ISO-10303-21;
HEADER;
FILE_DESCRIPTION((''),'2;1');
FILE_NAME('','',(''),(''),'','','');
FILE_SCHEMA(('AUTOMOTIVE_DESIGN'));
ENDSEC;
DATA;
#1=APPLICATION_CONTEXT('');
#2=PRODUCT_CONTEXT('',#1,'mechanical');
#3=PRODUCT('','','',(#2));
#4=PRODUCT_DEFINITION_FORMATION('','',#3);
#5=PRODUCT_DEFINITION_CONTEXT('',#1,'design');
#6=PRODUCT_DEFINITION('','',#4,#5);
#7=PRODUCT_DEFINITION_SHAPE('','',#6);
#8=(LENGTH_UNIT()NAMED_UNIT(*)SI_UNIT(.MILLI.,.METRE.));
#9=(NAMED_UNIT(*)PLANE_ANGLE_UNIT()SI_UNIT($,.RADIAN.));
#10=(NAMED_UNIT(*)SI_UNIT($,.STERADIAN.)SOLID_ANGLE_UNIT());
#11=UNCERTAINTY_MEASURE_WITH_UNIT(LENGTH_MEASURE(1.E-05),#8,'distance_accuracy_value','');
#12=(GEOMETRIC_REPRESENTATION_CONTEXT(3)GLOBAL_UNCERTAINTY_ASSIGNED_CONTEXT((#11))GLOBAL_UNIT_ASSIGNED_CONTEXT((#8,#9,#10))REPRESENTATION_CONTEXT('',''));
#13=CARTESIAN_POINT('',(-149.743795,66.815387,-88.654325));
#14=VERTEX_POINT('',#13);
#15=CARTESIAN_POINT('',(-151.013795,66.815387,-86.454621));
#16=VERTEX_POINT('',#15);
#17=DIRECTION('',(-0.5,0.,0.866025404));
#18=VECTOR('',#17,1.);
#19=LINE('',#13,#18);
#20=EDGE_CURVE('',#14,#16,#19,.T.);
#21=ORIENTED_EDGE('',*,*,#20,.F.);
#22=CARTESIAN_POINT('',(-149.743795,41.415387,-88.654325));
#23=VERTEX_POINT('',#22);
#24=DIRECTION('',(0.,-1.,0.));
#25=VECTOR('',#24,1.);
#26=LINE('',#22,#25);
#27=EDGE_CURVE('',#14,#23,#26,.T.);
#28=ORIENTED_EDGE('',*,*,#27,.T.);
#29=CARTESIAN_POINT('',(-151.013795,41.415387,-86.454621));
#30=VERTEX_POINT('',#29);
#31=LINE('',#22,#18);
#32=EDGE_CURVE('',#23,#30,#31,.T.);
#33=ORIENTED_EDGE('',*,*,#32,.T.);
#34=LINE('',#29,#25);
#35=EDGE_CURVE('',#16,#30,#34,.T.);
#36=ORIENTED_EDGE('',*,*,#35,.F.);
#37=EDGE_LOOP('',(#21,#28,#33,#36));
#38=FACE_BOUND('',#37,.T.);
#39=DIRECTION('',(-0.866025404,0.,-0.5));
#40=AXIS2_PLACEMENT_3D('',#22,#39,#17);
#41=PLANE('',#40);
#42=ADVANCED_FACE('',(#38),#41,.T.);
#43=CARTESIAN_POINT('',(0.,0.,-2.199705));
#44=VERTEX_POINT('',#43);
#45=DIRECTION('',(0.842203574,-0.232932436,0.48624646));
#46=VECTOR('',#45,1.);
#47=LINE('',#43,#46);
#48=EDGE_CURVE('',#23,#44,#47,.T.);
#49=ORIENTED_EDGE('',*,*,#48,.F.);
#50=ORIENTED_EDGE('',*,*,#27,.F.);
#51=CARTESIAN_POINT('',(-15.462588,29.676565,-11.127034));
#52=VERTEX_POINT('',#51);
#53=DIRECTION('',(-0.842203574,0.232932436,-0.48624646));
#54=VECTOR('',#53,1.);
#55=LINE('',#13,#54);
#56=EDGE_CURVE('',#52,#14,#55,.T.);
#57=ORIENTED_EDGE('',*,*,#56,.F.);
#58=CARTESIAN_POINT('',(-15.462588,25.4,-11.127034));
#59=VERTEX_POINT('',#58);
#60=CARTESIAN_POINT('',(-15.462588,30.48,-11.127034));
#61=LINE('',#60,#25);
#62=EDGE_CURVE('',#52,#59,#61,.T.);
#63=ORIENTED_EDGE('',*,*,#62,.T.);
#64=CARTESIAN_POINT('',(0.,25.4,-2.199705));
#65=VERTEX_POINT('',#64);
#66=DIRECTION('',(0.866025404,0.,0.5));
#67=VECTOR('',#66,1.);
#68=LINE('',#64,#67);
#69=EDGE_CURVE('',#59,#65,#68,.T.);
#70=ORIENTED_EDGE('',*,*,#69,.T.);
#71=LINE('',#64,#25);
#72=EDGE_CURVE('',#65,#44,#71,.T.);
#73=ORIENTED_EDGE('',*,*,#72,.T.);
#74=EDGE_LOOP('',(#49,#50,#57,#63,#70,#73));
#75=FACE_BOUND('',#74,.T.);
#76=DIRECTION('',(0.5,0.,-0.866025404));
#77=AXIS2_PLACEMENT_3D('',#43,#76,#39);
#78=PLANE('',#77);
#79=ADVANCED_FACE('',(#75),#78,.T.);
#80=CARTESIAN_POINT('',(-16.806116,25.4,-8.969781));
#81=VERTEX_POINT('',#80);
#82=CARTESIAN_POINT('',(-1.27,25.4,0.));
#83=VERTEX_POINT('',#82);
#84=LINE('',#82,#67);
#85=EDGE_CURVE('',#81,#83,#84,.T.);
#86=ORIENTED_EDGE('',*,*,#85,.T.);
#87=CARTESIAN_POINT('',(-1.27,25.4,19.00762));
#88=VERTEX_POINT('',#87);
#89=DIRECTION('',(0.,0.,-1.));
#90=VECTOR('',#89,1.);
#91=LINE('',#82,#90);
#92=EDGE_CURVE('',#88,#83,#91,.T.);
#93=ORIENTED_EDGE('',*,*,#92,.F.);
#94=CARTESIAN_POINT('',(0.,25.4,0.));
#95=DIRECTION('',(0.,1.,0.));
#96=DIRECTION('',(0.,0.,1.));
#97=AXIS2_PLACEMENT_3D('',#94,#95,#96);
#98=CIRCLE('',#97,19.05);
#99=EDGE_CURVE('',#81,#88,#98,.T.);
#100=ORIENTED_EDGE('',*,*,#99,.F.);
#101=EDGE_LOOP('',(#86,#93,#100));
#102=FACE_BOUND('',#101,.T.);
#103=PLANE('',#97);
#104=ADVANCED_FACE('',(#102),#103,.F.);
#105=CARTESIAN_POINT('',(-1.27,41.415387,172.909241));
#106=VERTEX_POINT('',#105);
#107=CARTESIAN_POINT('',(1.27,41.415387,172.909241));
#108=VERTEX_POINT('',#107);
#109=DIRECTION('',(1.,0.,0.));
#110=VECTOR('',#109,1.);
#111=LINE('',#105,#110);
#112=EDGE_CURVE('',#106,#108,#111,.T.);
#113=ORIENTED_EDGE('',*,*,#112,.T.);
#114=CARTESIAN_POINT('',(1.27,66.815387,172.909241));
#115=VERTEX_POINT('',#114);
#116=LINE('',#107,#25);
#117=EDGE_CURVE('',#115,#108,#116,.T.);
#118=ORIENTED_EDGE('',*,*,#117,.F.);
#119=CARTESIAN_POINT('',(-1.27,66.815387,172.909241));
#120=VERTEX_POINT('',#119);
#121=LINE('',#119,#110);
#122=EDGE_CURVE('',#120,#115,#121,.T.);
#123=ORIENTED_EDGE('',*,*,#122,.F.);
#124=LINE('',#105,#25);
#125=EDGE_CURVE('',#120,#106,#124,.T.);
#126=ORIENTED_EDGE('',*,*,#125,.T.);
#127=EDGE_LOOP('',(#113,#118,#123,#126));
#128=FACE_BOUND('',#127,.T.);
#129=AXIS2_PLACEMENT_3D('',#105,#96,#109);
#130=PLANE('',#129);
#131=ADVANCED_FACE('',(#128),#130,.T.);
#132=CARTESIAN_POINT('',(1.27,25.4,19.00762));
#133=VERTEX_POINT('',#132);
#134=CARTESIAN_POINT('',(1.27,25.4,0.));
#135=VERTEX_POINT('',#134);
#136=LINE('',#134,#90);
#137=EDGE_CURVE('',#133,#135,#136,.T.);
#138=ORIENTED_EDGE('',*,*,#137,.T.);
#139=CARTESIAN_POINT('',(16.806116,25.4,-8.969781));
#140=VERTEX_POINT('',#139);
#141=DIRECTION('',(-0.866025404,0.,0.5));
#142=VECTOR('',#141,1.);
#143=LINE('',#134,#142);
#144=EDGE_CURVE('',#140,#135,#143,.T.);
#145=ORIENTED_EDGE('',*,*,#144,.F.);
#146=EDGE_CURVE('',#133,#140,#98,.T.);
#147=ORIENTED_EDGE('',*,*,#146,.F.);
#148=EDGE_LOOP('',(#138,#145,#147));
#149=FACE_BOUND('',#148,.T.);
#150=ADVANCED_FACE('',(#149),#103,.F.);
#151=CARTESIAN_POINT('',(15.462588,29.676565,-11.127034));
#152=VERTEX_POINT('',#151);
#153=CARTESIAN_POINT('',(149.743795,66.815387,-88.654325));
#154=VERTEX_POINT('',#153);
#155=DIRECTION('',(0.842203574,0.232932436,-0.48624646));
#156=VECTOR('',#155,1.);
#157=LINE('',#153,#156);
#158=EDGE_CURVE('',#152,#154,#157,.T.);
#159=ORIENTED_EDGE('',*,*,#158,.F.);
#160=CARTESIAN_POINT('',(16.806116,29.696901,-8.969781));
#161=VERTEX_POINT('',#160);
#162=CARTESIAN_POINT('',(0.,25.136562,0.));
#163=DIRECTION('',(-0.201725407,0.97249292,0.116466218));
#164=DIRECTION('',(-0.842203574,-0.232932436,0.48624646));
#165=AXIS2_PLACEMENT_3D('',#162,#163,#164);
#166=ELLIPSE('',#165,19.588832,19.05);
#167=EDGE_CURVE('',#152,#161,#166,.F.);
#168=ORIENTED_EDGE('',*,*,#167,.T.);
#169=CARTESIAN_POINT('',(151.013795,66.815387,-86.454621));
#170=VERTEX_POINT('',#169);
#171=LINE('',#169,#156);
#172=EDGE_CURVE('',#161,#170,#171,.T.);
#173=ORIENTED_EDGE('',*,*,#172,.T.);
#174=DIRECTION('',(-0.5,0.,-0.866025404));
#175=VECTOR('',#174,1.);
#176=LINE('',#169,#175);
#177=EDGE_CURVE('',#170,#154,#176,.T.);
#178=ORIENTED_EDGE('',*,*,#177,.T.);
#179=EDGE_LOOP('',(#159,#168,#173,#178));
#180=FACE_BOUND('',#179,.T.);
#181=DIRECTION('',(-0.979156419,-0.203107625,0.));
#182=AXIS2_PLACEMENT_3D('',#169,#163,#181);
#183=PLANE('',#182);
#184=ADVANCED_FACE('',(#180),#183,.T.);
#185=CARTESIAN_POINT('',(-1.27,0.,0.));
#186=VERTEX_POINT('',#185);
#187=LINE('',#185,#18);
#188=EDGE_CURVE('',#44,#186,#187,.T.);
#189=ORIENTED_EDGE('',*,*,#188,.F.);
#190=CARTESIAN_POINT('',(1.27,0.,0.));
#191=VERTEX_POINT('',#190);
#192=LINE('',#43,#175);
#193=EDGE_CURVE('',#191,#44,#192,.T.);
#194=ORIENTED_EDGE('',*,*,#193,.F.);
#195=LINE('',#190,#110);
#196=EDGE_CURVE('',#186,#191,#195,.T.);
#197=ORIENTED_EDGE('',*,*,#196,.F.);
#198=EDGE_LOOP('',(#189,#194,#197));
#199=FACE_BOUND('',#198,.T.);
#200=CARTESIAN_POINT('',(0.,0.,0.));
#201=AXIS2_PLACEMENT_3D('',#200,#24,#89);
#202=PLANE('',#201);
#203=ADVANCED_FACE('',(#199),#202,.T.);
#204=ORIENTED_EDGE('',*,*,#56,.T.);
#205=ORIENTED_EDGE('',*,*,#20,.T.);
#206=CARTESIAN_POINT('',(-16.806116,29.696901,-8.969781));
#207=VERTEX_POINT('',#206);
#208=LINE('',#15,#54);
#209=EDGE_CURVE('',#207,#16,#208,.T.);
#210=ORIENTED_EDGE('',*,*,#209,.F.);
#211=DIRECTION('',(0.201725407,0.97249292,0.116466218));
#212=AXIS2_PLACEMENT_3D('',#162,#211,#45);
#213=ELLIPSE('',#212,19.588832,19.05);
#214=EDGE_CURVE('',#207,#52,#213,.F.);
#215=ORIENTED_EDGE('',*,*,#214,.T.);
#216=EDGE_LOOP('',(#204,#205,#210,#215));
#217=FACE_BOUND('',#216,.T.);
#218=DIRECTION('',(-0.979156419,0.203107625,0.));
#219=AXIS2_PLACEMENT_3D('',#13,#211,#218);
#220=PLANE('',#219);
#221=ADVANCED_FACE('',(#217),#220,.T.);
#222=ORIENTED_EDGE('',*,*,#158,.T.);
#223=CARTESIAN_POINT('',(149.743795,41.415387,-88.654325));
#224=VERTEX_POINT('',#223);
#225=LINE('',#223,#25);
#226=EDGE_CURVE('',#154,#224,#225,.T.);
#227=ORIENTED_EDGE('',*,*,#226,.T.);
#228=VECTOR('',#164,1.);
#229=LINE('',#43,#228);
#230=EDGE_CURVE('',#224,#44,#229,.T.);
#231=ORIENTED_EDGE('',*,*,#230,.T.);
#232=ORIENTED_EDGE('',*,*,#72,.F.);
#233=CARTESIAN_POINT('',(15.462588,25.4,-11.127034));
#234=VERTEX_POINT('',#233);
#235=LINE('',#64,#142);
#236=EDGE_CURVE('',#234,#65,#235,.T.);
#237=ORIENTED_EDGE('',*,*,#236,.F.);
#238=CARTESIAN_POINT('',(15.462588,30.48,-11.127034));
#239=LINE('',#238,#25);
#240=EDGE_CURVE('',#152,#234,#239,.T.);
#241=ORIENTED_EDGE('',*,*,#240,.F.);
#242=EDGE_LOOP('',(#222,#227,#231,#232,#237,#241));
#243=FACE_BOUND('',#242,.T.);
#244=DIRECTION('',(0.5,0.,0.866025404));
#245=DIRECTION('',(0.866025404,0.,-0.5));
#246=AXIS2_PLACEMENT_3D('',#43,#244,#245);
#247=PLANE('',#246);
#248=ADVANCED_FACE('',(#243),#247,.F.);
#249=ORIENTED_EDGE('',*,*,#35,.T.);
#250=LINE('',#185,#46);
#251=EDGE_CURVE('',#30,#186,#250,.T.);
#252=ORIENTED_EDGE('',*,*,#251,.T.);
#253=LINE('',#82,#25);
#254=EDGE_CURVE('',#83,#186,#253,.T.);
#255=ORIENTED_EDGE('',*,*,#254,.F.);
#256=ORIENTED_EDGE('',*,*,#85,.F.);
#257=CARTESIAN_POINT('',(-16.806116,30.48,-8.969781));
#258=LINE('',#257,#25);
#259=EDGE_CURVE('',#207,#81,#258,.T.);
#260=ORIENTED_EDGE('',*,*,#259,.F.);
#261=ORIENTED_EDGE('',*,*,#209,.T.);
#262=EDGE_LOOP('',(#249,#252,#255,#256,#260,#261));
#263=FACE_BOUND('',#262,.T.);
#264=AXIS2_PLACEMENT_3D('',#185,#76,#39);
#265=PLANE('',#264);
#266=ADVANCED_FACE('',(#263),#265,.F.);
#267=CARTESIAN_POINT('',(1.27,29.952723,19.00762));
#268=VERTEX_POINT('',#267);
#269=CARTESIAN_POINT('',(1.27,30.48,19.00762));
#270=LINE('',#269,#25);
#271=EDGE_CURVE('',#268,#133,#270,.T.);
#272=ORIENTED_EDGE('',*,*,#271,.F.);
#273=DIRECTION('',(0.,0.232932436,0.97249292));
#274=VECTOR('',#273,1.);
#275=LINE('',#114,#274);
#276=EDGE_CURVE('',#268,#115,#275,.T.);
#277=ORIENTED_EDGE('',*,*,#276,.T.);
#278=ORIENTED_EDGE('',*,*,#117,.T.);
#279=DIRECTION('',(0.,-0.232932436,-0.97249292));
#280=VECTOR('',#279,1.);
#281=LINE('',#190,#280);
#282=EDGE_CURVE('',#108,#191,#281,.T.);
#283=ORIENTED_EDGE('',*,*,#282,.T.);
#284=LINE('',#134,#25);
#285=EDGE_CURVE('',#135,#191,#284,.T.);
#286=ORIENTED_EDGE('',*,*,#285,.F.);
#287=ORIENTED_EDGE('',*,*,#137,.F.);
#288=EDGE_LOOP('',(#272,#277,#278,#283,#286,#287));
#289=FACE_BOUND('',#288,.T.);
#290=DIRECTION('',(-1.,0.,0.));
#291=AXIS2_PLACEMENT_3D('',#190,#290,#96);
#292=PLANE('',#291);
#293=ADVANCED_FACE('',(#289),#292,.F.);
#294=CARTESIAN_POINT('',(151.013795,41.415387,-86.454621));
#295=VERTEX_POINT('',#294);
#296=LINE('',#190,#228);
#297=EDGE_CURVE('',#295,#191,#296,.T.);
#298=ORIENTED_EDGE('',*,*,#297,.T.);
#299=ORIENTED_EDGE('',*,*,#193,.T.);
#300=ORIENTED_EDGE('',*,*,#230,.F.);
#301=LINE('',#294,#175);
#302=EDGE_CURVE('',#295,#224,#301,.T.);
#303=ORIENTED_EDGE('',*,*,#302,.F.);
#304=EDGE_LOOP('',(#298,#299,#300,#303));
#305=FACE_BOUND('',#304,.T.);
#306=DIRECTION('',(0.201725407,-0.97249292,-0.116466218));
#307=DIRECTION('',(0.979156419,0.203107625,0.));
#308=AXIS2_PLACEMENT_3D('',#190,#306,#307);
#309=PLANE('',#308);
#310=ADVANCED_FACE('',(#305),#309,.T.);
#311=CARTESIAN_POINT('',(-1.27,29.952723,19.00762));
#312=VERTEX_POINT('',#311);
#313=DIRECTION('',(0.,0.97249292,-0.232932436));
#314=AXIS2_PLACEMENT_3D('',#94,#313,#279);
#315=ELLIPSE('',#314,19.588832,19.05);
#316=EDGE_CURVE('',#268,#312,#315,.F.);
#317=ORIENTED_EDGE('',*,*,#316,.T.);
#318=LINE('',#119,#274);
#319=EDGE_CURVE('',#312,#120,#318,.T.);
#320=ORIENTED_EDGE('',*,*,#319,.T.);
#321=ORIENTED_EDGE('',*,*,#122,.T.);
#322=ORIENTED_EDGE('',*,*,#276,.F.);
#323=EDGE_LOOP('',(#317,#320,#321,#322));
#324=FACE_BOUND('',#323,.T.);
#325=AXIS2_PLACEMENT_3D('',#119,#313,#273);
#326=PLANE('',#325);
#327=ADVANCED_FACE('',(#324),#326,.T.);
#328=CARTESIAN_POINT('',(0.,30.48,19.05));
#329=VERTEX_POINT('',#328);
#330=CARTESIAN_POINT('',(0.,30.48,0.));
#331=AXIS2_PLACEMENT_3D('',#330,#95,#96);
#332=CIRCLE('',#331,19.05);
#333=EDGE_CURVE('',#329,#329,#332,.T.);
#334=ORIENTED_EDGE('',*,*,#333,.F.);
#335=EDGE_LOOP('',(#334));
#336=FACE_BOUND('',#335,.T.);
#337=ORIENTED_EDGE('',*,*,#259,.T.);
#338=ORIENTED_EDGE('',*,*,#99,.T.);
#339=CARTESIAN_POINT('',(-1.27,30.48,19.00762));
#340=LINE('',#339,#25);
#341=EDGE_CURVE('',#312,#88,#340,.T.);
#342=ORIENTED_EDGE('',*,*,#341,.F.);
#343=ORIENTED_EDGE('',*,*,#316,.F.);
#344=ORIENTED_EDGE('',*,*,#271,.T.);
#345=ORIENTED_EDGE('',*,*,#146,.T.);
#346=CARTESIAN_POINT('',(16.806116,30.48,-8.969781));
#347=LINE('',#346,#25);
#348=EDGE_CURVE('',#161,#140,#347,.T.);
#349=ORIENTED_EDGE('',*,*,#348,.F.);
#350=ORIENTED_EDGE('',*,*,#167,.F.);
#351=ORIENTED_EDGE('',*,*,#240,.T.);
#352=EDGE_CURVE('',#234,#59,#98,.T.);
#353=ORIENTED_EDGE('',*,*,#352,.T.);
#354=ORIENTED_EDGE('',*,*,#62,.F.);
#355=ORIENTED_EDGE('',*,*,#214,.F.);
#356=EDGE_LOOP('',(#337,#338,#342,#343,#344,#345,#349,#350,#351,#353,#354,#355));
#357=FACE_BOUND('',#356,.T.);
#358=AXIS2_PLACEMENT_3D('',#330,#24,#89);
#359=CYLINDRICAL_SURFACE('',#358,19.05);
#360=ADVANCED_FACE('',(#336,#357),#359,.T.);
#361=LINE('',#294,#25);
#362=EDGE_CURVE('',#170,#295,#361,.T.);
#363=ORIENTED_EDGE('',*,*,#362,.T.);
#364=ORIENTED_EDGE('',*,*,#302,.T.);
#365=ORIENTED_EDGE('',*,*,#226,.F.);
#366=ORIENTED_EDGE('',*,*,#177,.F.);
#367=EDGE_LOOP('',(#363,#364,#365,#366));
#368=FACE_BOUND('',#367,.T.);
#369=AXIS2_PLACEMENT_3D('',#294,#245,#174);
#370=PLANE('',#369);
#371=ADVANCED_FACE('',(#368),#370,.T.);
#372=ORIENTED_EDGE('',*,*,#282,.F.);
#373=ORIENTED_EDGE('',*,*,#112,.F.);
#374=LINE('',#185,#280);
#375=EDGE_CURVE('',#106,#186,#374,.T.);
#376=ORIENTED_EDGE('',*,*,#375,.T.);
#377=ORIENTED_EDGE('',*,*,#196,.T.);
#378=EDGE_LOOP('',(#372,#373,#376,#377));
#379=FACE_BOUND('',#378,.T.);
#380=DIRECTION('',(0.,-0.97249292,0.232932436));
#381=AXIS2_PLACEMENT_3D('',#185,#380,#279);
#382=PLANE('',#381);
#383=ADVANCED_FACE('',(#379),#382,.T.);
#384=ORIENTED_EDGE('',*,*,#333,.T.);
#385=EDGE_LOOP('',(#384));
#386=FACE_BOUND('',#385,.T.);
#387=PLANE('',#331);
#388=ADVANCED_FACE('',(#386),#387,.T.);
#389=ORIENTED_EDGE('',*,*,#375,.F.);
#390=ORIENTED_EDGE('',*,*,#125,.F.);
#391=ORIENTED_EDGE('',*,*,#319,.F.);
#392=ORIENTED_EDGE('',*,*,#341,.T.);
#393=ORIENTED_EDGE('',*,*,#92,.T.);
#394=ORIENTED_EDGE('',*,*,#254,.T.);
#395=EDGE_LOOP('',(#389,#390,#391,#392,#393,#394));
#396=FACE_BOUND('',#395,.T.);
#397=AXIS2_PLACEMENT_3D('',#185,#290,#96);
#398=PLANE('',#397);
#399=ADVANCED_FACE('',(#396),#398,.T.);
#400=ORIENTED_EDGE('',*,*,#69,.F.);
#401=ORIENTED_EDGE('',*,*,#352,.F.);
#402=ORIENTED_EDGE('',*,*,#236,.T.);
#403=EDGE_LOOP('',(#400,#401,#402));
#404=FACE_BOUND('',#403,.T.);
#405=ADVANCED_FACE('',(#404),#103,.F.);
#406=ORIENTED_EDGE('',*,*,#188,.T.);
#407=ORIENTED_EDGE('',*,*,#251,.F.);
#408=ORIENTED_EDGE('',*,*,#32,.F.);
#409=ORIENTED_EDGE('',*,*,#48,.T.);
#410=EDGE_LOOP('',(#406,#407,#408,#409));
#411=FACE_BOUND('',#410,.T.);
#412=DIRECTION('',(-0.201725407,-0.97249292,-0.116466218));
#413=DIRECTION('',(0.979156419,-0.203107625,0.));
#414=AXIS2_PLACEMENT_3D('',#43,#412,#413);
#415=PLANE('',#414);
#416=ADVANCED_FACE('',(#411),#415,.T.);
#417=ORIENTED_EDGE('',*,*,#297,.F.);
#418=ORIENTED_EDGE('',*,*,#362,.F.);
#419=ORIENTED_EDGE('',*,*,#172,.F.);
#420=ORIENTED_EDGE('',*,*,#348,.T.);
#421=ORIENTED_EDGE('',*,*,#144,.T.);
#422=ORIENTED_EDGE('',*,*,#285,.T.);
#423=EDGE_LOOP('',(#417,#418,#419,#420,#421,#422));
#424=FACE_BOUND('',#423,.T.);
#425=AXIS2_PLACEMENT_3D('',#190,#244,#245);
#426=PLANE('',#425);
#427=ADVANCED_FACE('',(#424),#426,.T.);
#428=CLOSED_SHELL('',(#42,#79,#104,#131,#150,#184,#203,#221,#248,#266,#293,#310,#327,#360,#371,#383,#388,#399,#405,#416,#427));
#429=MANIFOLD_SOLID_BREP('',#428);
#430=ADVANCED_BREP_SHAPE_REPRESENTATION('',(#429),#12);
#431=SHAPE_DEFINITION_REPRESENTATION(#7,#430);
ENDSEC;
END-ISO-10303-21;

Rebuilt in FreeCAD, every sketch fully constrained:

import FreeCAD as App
import Part
import Sketcher
from FreeCAD import Vector
Q = App.Units.Quantity


def add_polygon(sketch, points):
    """Adds a closed chain of lines whose ends are joined by coincident constraints."""
    first, n = sketch.GeometryCount, len(points)
    for a, b in zip(points, points[1:] + points[:1]):
        sketch.addGeometry(Part.LineSegment(App.Vector(*a, 0), App.Vector(*b, 0)), False)
    for i in range(n):
        sketch.addConstraint(Sketcher.Constraint("Coincident", first + i, 2, first + (i + 1) % n, 1))

doc = App.newDocument("Part")
params = doc.addObject("Spreadsheet::Sheet", "Params")
for row, (alias, value) in enumerate([
    ("sketch1_width", "0.1 in"),
    ("pad1_length", "1 in"),
    ("sketch2_width", "1 in"),
    ("sketch2_length", "7 in"),
    ("pad2_length", "0.1 in"),
    ("sketch3_diameter", "1.5 in"),
    ("pad3_length", "0.2 in"),
], start=1):
    params.set(f"A{row}", alias)
    params.set(f"B{row}", "=" + value)
    params.setAlias(f"B{row}", alias)

body = doc.addObject("PartDesign::Body", "Body")

# Sketch on XZ plane
sketch1 = body.newObject("Sketcher::SketchObject", "Sketch")
sketch1.AttachmentSupport = (doc.getObject("XZ_Plane"), [""])
sketch1.MapMode = "FlatFace"
add_polygon(sketch1, [(0, -2.2), (-1.3, 0), (1.3, 0)])  # lines 0-2
sketch1.addConstraint([
    Sketcher.Constraint("Horizontal", 1),
    Sketcher.Constraint("Symmetric", 0, 2, 1, 2, -1, 1),
    Sketcher.Constraint("PointOnObject", 2, 2, -2),
    Sketcher.Constraint("DistanceX", 1, 1, 1, 2, Q("0.1 in")),
    Sketcher.Constraint("Angle", 0, Q("120 deg")),
])
sketch1.setExpression("Constraints[6]", "Params.sketch1_width")
pad1 = body.newObject("PartDesign::Pad", "Pad")
pad1.Profile = sketch1
pad1.setExpression("Length", "Params.pad1_length")
pad1.Reversed = True

# Sketch on YZ plane
sketch2 = body.newObject("Sketcher::SketchObject", "Sketch001")
sketch2.AttachmentSupport = (doc.getObject("YZ_Plane"), [""])
sketch2.MapMode = "FlatFace"
add_polygon(sketch2, [(41, 173), (0, 0), (25, 0), (67, 173)])  # lines 0-3
sketch2.addConstraint([
    Sketcher.Constraint("Horizontal", 1),
    Sketcher.Constraint("Horizontal", 3),
    Sketcher.Constraint("Coincident", 0, 2, -1, 1),
    Sketcher.Constraint("Parallel", 0, 2),
    Sketcher.Constraint("DistanceX", 1, 1, 1, 2, Q("1 in")),
    Sketcher.Constraint("Distance", 0, Q("7 in")),
    Sketcher.Constraint("DistanceY", -1, 1, 2, 2, 172.909241),
])
sketch2.setExpression("Constraints[8]", "Params.sketch2_width")
sketch2.setExpression("Constraints[9]", "Params.sketch2_length")
pad2 = body.newObject("PartDesign::Pad", "Pad001")
pad2.Profile = sketch2
pad2.setExpression("Length", "Params.pad2_length")
pad2.Midplane = True
doc.recompute()

datumline = body.newObject("PartDesign::Line", "DatumLine")
datumline.Placement = App.Placement(Vector(0, 0, -0.733235), App.Rotation(Vector(0, 0, 1), Vector(0, 1, 0)))
polarpattern = body.newObject("PartDesign::PolarPattern", "PolarPattern")
polarpattern.Originals = [pad2]
polarpattern.Axis = (datumline, [""])
polarpattern.Angle = 360
polarpattern.Occurrences = 3
body.Tip = polarpattern

# Sketch on XZ plane
sketch3 = body.newObject("Sketcher::SketchObject", "Sketch002")
sketch3.AttachmentSupport = (doc.getObject("XZ_Plane"), [""])
sketch3.MapMode = "FlatFace"
sketch3.AttachmentOffset = App.Placement(Vector(0, 0, -1 * 25.4), App.Rotation())
sketch3.addGeometry(Part.Circle(Vector(0, 0, 0), Vector(0, 0, 1), 19), False)
sketch3.addConstraint([
    Sketcher.Constraint("Coincident", 0, 3, -1, 1),
    Sketcher.Constraint("Diameter", 0, Q("1.5 in")),
])
sketch3.setExpression("Constraints[1]", "Params.sketch3_diameter")
pad3 = body.newObject("PartDesign::Pad", "Pad002")
pad3.Profile = sketch3
pad3.setExpression("Length", "Params.pad3_length")
pad3.Reversed = True

doc.recompute()
